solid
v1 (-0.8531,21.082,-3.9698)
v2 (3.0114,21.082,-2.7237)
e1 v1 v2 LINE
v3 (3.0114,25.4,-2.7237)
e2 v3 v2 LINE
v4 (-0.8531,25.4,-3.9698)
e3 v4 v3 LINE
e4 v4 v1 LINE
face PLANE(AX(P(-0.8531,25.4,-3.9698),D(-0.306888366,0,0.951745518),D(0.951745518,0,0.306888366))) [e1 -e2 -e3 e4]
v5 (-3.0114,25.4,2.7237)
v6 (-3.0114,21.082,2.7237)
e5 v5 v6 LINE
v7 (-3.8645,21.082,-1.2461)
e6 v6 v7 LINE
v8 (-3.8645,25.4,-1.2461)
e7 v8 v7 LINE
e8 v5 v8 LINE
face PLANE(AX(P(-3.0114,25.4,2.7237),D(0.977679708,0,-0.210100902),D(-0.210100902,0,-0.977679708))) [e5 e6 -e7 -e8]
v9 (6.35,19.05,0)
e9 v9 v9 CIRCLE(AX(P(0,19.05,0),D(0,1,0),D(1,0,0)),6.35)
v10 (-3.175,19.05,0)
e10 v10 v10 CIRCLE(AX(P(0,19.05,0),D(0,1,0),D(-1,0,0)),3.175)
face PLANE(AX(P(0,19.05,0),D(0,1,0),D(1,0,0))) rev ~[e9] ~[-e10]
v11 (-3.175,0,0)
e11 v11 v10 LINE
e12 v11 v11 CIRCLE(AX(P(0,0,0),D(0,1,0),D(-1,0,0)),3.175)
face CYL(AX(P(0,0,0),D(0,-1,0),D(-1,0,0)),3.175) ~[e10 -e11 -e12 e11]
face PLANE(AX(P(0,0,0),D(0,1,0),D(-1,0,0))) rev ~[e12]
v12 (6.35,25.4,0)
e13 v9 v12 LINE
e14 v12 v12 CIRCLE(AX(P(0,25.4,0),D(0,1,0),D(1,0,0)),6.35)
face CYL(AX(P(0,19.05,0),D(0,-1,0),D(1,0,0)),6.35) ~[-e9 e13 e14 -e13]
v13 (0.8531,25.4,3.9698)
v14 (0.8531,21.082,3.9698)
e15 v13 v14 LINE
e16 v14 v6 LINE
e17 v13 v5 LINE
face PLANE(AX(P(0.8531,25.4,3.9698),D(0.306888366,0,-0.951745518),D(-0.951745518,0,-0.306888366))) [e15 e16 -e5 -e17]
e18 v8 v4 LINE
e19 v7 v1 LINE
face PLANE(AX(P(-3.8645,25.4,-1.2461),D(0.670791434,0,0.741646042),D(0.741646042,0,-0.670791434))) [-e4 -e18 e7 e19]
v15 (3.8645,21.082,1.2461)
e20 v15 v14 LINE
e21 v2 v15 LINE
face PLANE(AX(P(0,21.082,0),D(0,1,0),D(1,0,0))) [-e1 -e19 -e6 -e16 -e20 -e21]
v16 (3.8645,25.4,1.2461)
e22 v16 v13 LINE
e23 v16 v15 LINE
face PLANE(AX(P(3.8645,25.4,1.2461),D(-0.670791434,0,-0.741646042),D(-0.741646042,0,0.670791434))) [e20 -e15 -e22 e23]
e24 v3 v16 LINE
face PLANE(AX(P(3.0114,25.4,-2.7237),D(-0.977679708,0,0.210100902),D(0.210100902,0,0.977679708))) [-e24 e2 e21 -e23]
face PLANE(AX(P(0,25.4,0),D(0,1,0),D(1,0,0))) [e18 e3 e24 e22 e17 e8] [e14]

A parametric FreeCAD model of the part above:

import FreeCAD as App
import Part
import Sketcher

V = App.Vector
Q = App.Units.Quantity

doc = App.newDocument("Part")
body = doc.addObject("PartDesign::Body", "Body")

# Sketch on XZ plane
sketch1 = body.newObject("Sketcher::SketchObject", "Sketch")
sketch1.AttachmentSupport = (doc.getObject("XZ_Plane"), [""])
sketch1.MapMode = "FlatFace"
sketch1.addGeometry(Part.Circle(V(0, 0, 0), V(0, 0, 1), 3.2), False)
sketch1.addConstraint([
    Sketcher.Constraint("Coincident", 0, 3, -1, 1),
    Sketcher.Constraint("Diameter", 0, Q("0.25 in")),
])
pad1 = body.newObject("PartDesign::Pad", "Pad")
pad1.Profile = sketch1
pad1.Length = Q("0.75 in")
pad1.Reversed = True

# Sketch on XZ plane
sketch2 = body.newObject("Sketcher::SketchObject", "Sketch001")
sketch2.AttachmentSupport = (doc.getObject("XZ_Plane"), [""])
sketch2.MapMode = "FlatFace"
sketch2.AttachmentOffset = App.Placement(V(0, 0, -0.75 * 25.4), App.Rotation())
sketch2.addGeometry(Part.Circle(V(0, 0, 0), V(0, 0, 1), 6), False)
sketch2.addConstraint([
    Sketcher.Constraint("Coincident", 0, 3, -1, 1),
    Sketcher.Constraint("Diameter", 0, Q("0.5 in")),
])
pad2 = body.newObject("PartDesign::Pad", "Pad001")
pad2.Profile = sketch2
pad2.Length = Q("0.25 in")
pad2.Reversed = True

# Sketch on XZ plane
sketch3 = body.newObject("Sketcher::SketchObject", "Sketch002")
sketch3.AttachmentSupport = (doc.getObject("XZ_Plane"), [""])
sketch3.MapMode = "FlatFace"
sketch3.AttachmentOffset = App.Placement(V(0, 0, -1 * 25.4), App.Rotation())
sketch3.addGeometry([
    Part.LineSegment(V(3.9, 1.2, 0), V(3, -2.7, 0)),  # 0
    Part.LineSegment(V(3, -2.7, 0), V(-0.9, -4, 0)),  # 1
    Part.LineSegment(V(-0.9, -4, 0), V(-3.9, -1.2, 0)),  # 2
    Part.LineSegment(V(-3.9, -1.2, 0), V(-3, 2.7, 0)),  # 3
    Part.LineSegment(V(-3, 2.7, 0), V(0.9, 4, 0)),  # 4
    Part.LineSegment(V(0.9, 4, 0), V(3.9, 1.2, 0)),  # 5
], False)
sketch3.addConstraint([
    Sketcher.Constraint("Coincident", 0, 2, 1, 1),
    Sketcher.Constraint("Coincident", 1, 2, 2, 1),
    Sketcher.Constraint("Coincident", 2, 2, 3, 1),
    Sketcher.Constraint("Coincident", 3, 2, 4, 1),
    Sketcher.Constraint("Coincident", 4, 2, 5, 1),
    Sketcher.Constraint("Coincident", 5, 2, 0, 1),
    Sketcher.Constraint("Symmetric", 0, 2, 3, 2, -1, 1),
    Sketcher.Constraint("Symmetric", 1, 2, 4, 2, -1, 1),
    Sketcher.Constraint("Symmetric", 2, 2, 5, 2, -1, 1),
    Sketcher.Constraint("Equal", 0, 1),
    Sketcher.Constraint("Equal", 1, 2),
    Sketcher.Constraint("DistanceY", 1, 2, -1, 1, Q("0.1563 in")),
    Sketcher.Constraint("DistanceX", 2, 2, 0, 2, Q("0.2707 in")),
    Sketcher.Constraint("DistanceY", 2, 2, 3, 2, Q("0.1563 in")),
    Sketcher.Constraint("DistanceX", 2, 2, 5, 2, Q("0.3043 in")),
])
pocket1 = body.newObject("PartDesign::Pocket", "Pocket")
pocket1.Profile = sketch3
pocket1.Length = Q("0.17 in")
pocket1.Reversed = True

doc.recompute()
